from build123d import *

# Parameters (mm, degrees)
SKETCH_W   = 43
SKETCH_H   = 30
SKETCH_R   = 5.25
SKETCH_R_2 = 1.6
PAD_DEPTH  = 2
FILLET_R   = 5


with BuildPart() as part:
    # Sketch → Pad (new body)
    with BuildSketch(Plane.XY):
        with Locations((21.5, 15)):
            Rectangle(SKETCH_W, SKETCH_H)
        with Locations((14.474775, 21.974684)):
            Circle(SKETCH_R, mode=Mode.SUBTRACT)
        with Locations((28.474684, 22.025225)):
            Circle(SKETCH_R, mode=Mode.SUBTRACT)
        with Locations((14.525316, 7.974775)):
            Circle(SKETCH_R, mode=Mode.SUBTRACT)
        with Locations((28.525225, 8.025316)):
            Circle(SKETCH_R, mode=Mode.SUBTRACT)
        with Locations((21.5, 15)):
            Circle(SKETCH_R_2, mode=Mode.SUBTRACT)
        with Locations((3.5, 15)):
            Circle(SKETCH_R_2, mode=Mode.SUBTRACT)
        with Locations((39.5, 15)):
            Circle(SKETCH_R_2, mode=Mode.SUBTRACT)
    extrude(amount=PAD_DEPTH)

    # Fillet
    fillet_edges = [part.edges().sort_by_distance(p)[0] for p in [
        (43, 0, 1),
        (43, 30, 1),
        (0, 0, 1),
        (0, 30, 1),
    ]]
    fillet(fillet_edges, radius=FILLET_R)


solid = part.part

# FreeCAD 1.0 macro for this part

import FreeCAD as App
import Part
import Sketcher
from FreeCAD import Vector


def edges_at(feature, points):
    """Names of the edges that pass closest to the given points."""
    edges = feature.Shape.Edges
    near = lambda p: min(range(len(edges)), key=lambda i: edges[i].distToShape(Part.Vertex(*p))[0])
    return sorted({f"Edge{near(p) + 1}" for p in points})

doc = App.newDocument("Part")
params = doc.addObject("Spreadsheet::Sheet", "Params")
for row, (alias, value) in enumerate([
    ("sketch1_diameter", "10.5 mm"),
    ("sketch1_diameter2", "3.2 mm"),
    ("sketch1_width", "43 mm"),
    ("sketch1_height", "30 mm"),
    ("pad1_length", "2 mm"),
    ("fillet_radius", "5 mm"),
], start=1):
    params.set(f"A{row}", alias)
    params.set(f"B{row}", "=" + value)
    params.setAlias(f"B{row}", alias)

body = doc.addObject("PartDesign::Body", "Body")

sketch1 = body.newObject("Sketcher::SketchObject", "Sketch")
sketch1.AttachmentSupport = (doc.getObject("XY_Plane"), [""])
sketch1.MapMode = "FlatFace"
sketch1.addGeometry(Part.LineSegment(Vector(0, 30, 0), Vector(0, 0, 0)), False)
sketch1.addGeometry(Part.LineSegment(Vector(0, 0, 0), Vector(43, 0, 0)), False)
sketch1.addGeometry(Part.LineSegment(Vector(43, 0, 0), Vector(43, 30, 0)), False)
sketch1.addGeometry(Part.LineSegment(Vector(43, 30, 0), Vector(0, 30, 0)), False)
sketch1.addGeometry(Part.Circle(Vector(14.525316, 7.974775, 0), Vector(0, 0, 1), 5.25), False)
sketch1.addGeometry(Part.Circle(Vector(28.525225, 8.025316, 0), Vector(0, 0, 1), 5.25), False)
sketch1.addGeometry(Part.Circle(Vector(3.5, 15, 0), Vector(0, 0, 1), 1.6), False)
sketch1.addGeometry(Part.Circle(Vector(14.474775, 21.974684, 0), Vector(0, 0, 1), 5.25), False)
sketch1.addGeometry(Part.Circle(Vector(21.5, 15, 0), Vector(0, 0, 1), 1.6), False)
sketch1.addGeometry(Part.Circle(Vector(39.5, 15, 0), Vector(0, 0, 1), 1.6), False)
sketch1.addGeometry(Part.Circle(Vector(28.474684, 22.025225, 0), Vector(0, 0, 1), 5.25), False)
sketch1.addConstraint(Sketcher.Constraint("Coincident", 0, 2, 1, 1))
sketch1.addConstraint(Sketcher.Constraint("Coincident", 1, 2, 2, 1))
sketch1.addConstraint(Sketcher.Constraint("Coincident", 2, 2, 3, 1))
sketch1.addConstraint(Sketcher.Constraint("Coincident", 3, 2, 0, 1))
sketch1.addConstraint(Sketcher.Constraint("Vertical", 0))
sketch1.addConstraint(Sketcher.Constraint("Horizontal", 1))
sketch1.addConstraint(Sketcher.Constraint("Vertical", 2))
sketch1.addConstraint(Sketcher.Constraint("Horizontal", 3))
sketch1.addConstraint(Sketcher.Constraint("Coincident", 0, 2, -1, 1))
sketch1.addConstraint(Sketcher.Constraint("Equal", 4, 5))
sketch1.addConstraint(Sketcher.Constraint("Equal", 5, 7))
sketch1.addConstraint(Sketcher.Constraint("Equal", 6, 8))
sketch1.addConstraint(Sketcher.Constraint("Equal", 8, 9))
sketch1.addConstraint(Sketcher.Constraint("Equal", 7, 10))
sketch1.addConstraint(Sketcher.Constraint("Horizontal", 6, 3, 8, 3))
sketch1.addConstraint(Sketcher.Constraint("Horizontal", 8, 3, 9, 3))
sketch1.addConstraint(Sketcher.Constraint("Diameter", 4, 10.5))
sketch1.addConstraint(Sketcher.Constraint("Diameter", 6, 3.2))
sketch1.addConstraint(Sketcher.Constraint("DistanceX", 1, 1, 1, 2, 43.0))
sketch1.addConstraint(Sketcher.Constraint("DistanceY", 0, 2, 0, 1, 30.0))
sketch1.addConstraint(Sketcher.Constraint("DistanceY", -1, 1, 6, 3, 15.0))
sketch1.addConstraint(Sketcher.Constraint("DistanceX", 6, 3, 8, 3, 18.0))
sketch1.addConstraint(Sketcher.Constraint("DistanceX", 8, 3, 9, 3, 18.0))
sketch1.addConstraint(Sketcher.Constraint("DistanceX", -1, 1, 6, 3, 3.5))
sketch1.addConstraint(Sketcher.Constraint("DistanceX", 4, 3, 5, 3, 13.999909))
sketch1.addConstraint(Sketcher.Constraint("DistanceY", 4, 3, 5, 3, 0.050541))
sketch1.addConstraint(Sketcher.Constraint("DistanceX", 7, 3, 4, 3, 0.050541))
sketch1.addConstraint(Sketcher.Constraint("DistanceY", 4, 3, 7, 3, 13.999909))
sketch1.addConstraint(Sketcher.Constraint("DistanceX", 10, 3, 5, 3, 0.050541))
sketch1.addConstraint(Sketcher.Constraint("DistanceY", 5, 3, 10, 3, 13.999909))
sketch1.addConstraint(Sketcher.Constraint("DistanceX", -1, 1, 4, 3, 14.525316))
sketch1.addConstraint(Sketcher.Constraint("DistanceY", -1, 1, 4, 3, 7.974775))
sketch1.setExpression("Constraints[16]", "Params.sketch1_diameter")
sketch1.setExpression("Constraints[17]", "Params.sketch1_diameter2")
sketch1.setExpression("Constraints[18]", "Params.sketch1_width")
sketch1.setExpression("Constraints[19]", "Params.sketch1_height")
pad1 = body.newObject("PartDesign::Pad", "Pad")
pad1.Profile = sketch1
pad1.setExpression("Length", "Params.pad1_length")
doc.recompute()

fillet = body.newObject("PartDesign::Fillet", "Fillet")
fillet.Base = (pad1, edges_at(pad1, [
    (43, 0, 1),
    (43, 30, 1),
    (0, 0, 1),
    (0, 30, 1),
]))
fillet.setExpression("Radius", "Params.fillet_radius")

doc.recompute()
